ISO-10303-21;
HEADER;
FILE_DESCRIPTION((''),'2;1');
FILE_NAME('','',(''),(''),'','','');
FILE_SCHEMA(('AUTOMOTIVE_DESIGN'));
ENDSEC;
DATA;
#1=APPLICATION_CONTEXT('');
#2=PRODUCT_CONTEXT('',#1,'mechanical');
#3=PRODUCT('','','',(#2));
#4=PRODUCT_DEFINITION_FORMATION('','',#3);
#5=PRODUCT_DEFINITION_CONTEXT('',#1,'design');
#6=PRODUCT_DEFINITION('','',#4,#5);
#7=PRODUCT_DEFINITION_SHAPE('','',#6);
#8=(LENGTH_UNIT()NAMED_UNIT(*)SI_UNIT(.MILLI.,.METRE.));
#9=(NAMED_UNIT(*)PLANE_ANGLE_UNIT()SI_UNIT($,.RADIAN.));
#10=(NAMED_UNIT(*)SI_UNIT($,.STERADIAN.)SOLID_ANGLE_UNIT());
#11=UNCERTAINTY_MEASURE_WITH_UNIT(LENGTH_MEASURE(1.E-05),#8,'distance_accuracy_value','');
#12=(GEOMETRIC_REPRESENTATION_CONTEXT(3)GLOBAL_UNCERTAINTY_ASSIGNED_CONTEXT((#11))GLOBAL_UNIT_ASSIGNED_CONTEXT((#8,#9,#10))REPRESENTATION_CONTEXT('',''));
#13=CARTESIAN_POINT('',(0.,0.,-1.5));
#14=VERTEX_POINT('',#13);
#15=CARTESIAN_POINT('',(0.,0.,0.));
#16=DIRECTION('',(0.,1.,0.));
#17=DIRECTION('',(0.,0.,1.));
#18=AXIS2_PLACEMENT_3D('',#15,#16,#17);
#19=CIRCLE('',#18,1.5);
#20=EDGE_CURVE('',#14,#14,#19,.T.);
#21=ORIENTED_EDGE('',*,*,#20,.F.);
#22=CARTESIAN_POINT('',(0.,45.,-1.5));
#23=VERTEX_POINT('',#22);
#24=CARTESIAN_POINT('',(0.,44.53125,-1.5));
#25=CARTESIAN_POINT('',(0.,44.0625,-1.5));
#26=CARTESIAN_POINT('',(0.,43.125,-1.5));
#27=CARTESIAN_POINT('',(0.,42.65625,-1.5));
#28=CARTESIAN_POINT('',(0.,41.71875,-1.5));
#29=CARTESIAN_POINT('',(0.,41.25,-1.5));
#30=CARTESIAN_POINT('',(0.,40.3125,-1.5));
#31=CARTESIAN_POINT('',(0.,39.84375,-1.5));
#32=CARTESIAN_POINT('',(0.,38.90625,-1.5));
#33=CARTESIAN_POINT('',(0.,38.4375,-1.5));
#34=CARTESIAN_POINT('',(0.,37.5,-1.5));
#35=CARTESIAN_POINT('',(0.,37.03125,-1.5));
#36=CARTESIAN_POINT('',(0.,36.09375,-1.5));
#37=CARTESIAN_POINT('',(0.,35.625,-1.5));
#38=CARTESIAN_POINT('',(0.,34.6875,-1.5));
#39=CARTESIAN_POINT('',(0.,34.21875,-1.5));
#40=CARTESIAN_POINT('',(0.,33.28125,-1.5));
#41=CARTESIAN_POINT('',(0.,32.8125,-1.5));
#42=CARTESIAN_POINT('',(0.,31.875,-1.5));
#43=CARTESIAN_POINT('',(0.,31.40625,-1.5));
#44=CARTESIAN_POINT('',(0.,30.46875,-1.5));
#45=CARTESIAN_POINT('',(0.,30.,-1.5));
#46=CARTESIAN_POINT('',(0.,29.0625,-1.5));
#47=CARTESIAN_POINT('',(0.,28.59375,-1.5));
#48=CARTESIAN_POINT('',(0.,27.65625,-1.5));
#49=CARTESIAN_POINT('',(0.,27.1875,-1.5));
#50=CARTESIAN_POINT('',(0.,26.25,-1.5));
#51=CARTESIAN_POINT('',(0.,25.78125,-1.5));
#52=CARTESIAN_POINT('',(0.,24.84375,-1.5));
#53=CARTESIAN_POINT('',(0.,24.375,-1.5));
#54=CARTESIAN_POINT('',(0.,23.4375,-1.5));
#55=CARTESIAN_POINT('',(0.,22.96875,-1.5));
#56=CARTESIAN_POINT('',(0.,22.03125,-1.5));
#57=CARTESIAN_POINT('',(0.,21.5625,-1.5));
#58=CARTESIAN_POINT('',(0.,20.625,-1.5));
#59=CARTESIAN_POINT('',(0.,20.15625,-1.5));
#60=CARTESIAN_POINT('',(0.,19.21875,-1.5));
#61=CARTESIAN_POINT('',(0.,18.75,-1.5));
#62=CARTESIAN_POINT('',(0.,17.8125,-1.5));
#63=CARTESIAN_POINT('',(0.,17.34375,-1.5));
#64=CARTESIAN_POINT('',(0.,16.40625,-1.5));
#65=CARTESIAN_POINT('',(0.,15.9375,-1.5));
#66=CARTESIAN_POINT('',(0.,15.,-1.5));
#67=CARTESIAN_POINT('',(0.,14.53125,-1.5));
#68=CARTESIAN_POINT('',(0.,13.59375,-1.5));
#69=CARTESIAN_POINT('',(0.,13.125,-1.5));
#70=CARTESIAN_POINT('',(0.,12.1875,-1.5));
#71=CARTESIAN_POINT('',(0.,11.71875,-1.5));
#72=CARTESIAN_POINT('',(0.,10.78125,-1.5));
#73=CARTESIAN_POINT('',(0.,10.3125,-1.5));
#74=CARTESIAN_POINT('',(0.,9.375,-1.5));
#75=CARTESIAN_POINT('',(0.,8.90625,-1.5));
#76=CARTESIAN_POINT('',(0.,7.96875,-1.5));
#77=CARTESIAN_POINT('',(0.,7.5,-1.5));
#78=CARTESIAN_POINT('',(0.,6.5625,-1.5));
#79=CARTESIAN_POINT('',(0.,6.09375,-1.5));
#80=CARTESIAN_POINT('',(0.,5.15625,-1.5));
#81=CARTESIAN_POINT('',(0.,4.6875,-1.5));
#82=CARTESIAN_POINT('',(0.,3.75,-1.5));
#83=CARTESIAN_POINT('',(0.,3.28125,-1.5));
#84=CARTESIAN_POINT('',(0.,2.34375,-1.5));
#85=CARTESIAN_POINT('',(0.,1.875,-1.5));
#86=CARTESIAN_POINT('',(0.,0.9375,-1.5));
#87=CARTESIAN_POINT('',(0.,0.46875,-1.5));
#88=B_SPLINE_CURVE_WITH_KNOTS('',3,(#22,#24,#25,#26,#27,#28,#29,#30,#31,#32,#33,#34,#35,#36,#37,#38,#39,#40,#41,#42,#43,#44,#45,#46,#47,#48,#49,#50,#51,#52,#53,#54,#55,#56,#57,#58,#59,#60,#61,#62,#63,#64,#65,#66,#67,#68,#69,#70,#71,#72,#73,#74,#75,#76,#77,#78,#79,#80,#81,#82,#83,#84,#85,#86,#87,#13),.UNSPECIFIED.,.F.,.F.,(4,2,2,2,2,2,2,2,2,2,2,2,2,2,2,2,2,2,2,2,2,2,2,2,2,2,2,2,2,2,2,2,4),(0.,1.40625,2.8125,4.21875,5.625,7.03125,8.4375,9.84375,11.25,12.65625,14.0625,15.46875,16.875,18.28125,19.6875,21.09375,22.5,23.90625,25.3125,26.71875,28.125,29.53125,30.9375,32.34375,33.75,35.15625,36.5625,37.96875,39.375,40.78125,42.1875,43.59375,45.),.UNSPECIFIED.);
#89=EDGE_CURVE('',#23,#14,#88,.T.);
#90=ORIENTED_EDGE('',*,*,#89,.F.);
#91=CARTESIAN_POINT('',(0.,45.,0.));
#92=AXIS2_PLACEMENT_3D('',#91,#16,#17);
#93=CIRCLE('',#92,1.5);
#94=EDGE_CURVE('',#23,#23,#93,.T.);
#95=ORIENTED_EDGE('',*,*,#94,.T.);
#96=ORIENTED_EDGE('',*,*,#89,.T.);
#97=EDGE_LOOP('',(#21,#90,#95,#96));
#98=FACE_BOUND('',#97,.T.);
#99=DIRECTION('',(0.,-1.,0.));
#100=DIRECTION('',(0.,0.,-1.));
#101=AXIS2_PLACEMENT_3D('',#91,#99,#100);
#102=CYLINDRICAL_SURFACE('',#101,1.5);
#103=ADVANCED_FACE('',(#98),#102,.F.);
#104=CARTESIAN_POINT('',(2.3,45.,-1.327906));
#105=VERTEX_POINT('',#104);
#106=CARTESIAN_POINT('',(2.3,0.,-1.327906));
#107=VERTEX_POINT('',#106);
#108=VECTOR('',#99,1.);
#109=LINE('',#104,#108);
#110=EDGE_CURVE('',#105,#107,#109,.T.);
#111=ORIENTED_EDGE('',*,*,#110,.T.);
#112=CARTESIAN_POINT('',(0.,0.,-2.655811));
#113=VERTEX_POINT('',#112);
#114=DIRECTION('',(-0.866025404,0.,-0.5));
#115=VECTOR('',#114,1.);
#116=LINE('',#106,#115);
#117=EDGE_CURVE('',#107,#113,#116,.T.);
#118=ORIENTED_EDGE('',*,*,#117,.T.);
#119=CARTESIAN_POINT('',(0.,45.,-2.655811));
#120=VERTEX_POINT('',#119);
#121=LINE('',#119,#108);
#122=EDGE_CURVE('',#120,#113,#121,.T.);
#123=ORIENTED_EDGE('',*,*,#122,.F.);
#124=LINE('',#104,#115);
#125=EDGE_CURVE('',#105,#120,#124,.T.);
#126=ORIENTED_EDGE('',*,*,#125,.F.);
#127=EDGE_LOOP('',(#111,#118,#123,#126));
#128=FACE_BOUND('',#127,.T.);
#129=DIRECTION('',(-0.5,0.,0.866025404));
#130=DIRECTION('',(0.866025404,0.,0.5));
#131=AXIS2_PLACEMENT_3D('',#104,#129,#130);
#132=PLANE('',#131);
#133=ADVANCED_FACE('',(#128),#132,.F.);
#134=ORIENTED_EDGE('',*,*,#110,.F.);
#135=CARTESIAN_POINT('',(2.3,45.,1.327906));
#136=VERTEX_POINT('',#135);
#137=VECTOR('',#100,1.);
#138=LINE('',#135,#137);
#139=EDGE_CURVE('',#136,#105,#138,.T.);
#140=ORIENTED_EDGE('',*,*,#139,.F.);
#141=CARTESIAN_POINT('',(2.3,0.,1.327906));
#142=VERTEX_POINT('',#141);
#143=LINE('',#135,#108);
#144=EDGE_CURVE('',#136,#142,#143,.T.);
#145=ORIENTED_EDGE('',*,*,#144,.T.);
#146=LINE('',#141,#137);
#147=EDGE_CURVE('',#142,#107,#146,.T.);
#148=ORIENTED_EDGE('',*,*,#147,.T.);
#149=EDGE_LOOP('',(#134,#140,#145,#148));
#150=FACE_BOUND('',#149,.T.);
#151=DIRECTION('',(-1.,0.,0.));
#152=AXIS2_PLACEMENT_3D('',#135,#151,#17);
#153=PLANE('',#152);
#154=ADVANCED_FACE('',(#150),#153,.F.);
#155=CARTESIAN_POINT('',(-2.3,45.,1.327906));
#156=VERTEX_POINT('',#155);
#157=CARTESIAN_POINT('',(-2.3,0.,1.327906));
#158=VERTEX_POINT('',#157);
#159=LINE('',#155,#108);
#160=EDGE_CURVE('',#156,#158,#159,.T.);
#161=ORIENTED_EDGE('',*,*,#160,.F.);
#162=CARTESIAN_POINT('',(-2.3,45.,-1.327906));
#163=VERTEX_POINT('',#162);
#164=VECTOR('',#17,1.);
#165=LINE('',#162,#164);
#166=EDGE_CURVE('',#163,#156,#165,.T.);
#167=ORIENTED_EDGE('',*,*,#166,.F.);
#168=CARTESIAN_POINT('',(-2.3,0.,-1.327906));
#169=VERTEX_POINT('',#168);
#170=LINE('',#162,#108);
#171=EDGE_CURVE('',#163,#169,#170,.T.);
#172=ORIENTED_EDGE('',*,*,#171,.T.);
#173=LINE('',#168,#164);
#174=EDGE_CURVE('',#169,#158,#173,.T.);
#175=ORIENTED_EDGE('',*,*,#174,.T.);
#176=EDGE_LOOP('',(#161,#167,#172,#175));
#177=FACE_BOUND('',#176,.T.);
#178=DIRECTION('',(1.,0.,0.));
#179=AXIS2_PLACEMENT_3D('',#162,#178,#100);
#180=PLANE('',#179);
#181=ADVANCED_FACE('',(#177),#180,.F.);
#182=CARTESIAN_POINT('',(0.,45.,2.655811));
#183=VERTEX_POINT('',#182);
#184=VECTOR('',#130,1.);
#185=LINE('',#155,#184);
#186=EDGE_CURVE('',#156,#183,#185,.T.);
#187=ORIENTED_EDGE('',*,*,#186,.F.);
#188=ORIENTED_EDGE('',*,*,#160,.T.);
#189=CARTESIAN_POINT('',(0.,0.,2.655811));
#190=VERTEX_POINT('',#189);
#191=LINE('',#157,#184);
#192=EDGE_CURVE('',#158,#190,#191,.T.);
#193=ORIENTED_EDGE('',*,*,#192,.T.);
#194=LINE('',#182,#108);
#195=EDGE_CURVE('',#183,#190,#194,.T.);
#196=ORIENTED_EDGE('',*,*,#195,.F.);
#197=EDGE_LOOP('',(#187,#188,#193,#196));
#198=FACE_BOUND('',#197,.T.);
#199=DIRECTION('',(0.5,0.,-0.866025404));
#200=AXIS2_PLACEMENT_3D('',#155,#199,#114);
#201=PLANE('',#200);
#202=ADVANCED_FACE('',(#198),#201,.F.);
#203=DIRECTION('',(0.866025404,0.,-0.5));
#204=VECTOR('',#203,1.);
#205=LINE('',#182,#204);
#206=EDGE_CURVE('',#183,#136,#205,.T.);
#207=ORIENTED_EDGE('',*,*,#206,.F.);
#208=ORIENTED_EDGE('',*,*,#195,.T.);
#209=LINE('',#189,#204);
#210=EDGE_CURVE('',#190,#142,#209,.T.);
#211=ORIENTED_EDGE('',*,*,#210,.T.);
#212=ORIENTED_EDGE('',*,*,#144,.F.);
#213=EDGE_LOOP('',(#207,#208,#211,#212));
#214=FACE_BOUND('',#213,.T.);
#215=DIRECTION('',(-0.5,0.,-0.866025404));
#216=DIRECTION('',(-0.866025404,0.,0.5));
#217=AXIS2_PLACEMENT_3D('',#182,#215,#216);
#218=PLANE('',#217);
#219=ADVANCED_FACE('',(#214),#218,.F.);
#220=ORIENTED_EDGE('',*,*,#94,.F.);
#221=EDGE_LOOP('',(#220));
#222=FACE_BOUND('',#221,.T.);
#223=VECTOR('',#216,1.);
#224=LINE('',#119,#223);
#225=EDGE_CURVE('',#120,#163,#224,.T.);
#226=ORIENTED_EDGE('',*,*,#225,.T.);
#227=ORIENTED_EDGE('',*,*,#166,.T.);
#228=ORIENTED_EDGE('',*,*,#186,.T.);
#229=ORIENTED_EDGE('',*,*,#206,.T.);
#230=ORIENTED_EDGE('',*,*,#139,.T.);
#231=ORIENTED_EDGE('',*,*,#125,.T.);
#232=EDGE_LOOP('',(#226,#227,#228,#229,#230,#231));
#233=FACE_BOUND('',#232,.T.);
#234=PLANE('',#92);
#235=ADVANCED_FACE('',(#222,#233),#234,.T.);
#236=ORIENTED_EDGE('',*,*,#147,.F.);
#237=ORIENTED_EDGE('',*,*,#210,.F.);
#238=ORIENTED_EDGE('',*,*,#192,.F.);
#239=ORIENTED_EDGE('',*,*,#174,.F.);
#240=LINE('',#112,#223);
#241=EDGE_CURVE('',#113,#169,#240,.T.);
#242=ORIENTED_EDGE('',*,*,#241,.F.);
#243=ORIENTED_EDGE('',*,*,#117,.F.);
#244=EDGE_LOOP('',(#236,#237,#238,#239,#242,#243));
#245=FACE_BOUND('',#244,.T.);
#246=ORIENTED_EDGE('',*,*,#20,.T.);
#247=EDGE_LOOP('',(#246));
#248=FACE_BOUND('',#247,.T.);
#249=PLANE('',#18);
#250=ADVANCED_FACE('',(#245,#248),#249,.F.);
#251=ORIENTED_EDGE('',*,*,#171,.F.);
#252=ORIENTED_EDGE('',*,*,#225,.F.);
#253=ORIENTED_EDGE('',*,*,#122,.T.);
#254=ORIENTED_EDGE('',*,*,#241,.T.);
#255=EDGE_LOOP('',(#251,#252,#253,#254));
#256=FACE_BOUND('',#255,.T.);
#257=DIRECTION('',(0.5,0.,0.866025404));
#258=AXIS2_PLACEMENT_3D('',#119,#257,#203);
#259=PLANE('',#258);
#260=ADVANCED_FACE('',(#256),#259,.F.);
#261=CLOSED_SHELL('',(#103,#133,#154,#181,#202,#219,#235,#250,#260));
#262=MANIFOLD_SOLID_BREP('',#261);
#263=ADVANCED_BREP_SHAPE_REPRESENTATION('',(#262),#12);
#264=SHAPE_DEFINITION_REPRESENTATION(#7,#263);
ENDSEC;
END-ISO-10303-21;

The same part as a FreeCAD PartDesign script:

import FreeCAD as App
import Part
import Sketcher
Q = App.Units.Quantity


def add_polygon(sketch, points):
    """Adds a closed chain of lines whose ends are joined by coincident constraints."""
    first, n = sketch.GeometryCount, len(points)
    for a, b in zip(points, points[1:] + points[:1]):
        sketch.addGeometry(Part.LineSegment(App.Vector(*a, 0), App.Vector(*b, 0)), False)
    for i in range(n):
        sketch.addConstraint(Sketcher.Constraint("Coincident", first + i, 2, first + (i + 1) % n, 1))

doc = App.newDocument("Part")
body = doc.addObject("PartDesign::Body", "Body")

sketch1 = body.newObject("Sketcher::SketchObject", "Sketch")
sketch1.AttachmentSupport = (doc.getObject("XZ_Plane"), [""])
sketch1.MapMode = "FlatFace"
add_polygon(sketch1, [(0, -2.655811), (-2.3, -1.327906), (-2.3, 1.327906), (0, 2.655811), (2.3, 1.327906), (2.3, -1.327906)])
sketch1.addGeometry(Part.Circle(App.Vector(0, 0, 0), App.Vector(0, 0, 1), 1.5), False)
sketch1.addConstraint(Sketcher.Constraint("Vertical", 1))
sketch1.addConstraint(Sketcher.Constraint("Vertical", 4))
sketch1.addConstraint(Sketcher.Constraint("Coincident", 6, 3, -1, 1))
sketch1.addConstraint(Sketcher.Constraint("Symmetric", 0, 2, 3, 2, -1, 1))
sketch1.addConstraint(Sketcher.Constraint("Symmetric", 2, 2, 5, 2, -1, 1))
sketch1.addConstraint(Sketcher.Constraint("PointOnObject", 2, 2, -2))
sketch1.addConstraint(Sketcher.Constraint("Parallel", 2, 5))
sketch1.addConstraint(Sketcher.Constraint("Horizontal", 1, 2, 3, 2))
sketch1.addConstraint(Sketcher.Constraint("Diameter", 6, 3.0))
sketch1.addConstraint(Sketcher.Constraint("Angle", 0, Q("150 deg")))
sketch1.addConstraint(Sketcher.Constraint("DistanceX", 0, 2, -1, 1, 2.3))
sketch1.addConstraint(Sketcher.Constraint("DistanceY", 1, 1, 1, 2, 2.655811))
pad1 = body.newObject("PartDesign::Pad", "Pad")
pad1.Profile = sketch1
pad1.Length = 45
pad1.Reversed = True

doc.recompute()
